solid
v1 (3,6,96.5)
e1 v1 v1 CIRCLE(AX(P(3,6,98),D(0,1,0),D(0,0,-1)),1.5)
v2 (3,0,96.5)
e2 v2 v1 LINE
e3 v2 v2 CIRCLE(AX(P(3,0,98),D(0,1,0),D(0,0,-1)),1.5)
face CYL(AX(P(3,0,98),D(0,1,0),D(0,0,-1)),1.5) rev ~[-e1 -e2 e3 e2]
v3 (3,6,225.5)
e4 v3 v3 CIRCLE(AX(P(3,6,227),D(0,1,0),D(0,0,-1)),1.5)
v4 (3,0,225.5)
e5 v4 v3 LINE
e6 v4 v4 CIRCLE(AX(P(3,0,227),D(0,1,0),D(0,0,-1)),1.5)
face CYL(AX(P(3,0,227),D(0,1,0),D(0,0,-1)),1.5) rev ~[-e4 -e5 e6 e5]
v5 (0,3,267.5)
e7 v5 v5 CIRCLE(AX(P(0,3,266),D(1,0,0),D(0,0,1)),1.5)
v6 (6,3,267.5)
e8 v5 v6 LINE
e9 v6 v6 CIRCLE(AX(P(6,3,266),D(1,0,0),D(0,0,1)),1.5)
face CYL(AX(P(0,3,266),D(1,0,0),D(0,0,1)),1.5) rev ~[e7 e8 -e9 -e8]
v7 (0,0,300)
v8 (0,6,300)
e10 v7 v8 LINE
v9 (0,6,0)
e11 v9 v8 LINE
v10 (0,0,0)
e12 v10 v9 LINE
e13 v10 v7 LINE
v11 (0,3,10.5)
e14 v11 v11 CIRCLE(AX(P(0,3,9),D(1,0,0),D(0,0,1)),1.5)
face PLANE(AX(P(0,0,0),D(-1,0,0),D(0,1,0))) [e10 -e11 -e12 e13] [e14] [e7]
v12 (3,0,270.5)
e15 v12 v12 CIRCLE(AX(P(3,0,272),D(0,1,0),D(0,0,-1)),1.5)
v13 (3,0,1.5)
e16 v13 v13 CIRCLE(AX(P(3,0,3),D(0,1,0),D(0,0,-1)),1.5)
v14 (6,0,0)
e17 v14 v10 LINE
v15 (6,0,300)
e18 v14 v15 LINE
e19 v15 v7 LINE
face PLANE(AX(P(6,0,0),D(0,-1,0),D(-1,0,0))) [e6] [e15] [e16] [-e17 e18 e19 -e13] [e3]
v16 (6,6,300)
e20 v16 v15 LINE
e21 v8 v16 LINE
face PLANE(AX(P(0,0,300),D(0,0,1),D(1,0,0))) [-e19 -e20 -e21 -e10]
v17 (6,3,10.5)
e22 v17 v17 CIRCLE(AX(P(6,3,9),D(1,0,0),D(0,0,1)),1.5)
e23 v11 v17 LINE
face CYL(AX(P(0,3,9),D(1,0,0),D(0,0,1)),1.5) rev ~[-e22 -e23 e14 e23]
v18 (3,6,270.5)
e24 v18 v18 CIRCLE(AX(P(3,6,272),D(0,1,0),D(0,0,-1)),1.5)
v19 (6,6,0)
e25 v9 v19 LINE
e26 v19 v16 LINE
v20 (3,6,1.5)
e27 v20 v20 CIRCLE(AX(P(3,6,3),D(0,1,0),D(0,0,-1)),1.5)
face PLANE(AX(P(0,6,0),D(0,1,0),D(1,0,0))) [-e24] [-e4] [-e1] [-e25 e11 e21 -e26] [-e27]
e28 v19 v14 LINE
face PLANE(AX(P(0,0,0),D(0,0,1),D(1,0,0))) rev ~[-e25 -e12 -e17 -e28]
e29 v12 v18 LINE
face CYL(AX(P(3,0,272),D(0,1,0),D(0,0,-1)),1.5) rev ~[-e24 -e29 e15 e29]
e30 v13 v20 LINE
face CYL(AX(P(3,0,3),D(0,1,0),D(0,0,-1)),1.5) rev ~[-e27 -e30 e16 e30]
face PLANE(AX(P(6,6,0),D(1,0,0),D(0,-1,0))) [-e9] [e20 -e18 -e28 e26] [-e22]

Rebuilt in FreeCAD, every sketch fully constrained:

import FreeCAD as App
import Part
import Sketcher
from FreeCAD import Vector
Q = App.Units.Quantity


def add_polygon(sketch, points):
    """Adds a closed chain of lines whose ends are joined by coincident constraints."""
    first, n = sketch.GeometryCount, len(points)
    for a, b in zip(points, points[1:] + points[:1]):
        sketch.addGeometry(Part.LineSegment(App.Vector(*a, 0), App.Vector(*b, 0)), False)
    for i in range(n):
        sketch.addConstraint(Sketcher.Constraint("Coincident", first + i, 2, first + (i + 1) % n, 1))

doc = App.newDocument("Part")
params = doc.addObject("Spreadsheet::Sheet", "Params")
for row, (alias, value) in enumerate([
    ("sketch1_width", "6 mm"),
    ("pad1_length", "300 mm"),
    ("sketch2_diameter", "3 mm"),
    ("hole_diameter", "3 mm"),
    ("sketch3_diameter", "3 mm"),
    ("hole2_diameter", "3 mm"),
], start=1):
    params.set(f"A{row}", alias)
    params.set(f"B{row}", "=" + value)
    params.setAlias(f"B{row}", alias)

body = doc.addObject("PartDesign::Body", "Body")

sketch1 = doc.addObject("Sketcher::SketchObject", "Sketch")
body.addObject(sketch1)
sketch1.AttachmentSupport = (doc.XY_Plane, [""])
sketch1.MapMode = "FlatFace"
add_polygon(sketch1, [(6, 6), (0, 6), (0, 0), (6, 0)])
sketch1.addConstraint([
    Sketcher.Constraint("Horizontal", 0),
    Sketcher.Constraint("Vertical", 1),
    Sketcher.Constraint("Horizontal", 2),
    Sketcher.Constraint("Vertical", 3),
    Sketcher.Constraint("Coincident", 1, 2, -1, 1),
    Sketcher.Constraint("Equal", 2, 1),
    Sketcher.Constraint("DistanceX", 0, 2, 0, 1, Q("6 mm")),
])
sketch1.setExpression("Constraints[10]", "Params.sketch1_width")
pad1 = doc.addObject("PartDesign::Pad", "Pad")
body.addObject(pad1)
pad1.Profile = sketch1
pad1.setExpression("Length", "Params.pad1_length")

sketch2 = doc.addObject("Sketcher::SketchObject", "Sketch001")
body.addObject(sketch2)
sketch2.AttachmentSupport = (doc.XZ_Plane, [""])
sketch2.MapMode = "FlatFace"
sketch2.addGeometry([
    Part.Circle(Vector(3, 227, 0), Vector(0, 0, 1), 1.5),
    Part.Circle(Vector(3, 98, 0), Vector(0, 0, 1), 1.5),
    Part.Circle(Vector(3, 3, 0), Vector(0, 0, 1), 1.5),
    Part.Circle(Vector(3, 272, 0), Vector(0, 0, 1), 1.5),
], False)
sketch2.addConstraint([
    Sketcher.Constraint("Equal", 0, 1),
    Sketcher.Constraint("Equal", 1, 2),
    Sketcher.Constraint("Equal", 2, 3),
    Sketcher.Constraint("Vertical", 0, 3, 1, 3),
    Sketcher.Constraint("Vertical", 1, 3, 2, 3),
    Sketcher.Constraint("Vertical", 2, 3, 3, 3),
    Sketcher.Constraint("Diameter", 0, Q("3 mm")),
    Sketcher.Constraint("DistanceX", -1, 1, 0, 3, Q("3 mm")),
    Sketcher.Constraint("DistanceY", -1, 1, 0, 3, Q("227 mm")),
    Sketcher.Constraint("DistanceY", -1, 1, 1, 3, Q("98 mm")),
    Sketcher.Constraint("DistanceY", -1, 1, 2, 3, Q("3 mm")),
    Sketcher.Constraint("DistanceY", -1, 1, 3, 3, Q("272 mm")),
])
sketch2.setExpression("Constraints[6]", "Params.sketch2_diameter")
doc.recompute()
hole = doc.addObject("PartDesign::Hole", "Hole")
body.addObject(hole)
hole.Profile = sketch2
hole.ThreadType = "None"
hole.setExpression("Diameter", "Params.hole_diameter")
hole.DepthType = "ThroughAll"

sketch3 = doc.addObject("Sketcher::SketchObject", "Sketch002")
body.addObject(sketch3)
sketch3.AttachmentSupport = (doc.YZ_Plane, [""])
sketch3.MapMode = "FlatFace"
sketch3.addGeometry([
    Part.Circle(Vector(3, 266, 0), Vector(0, 0, 1), 1.5),
    Part.Circle(Vector(3, 9, 0), Vector(0, 0, 1), 1.5),
], False)
sketch3.addConstraint([
    Sketcher.Constraint("Equal", 0, 1),
    Sketcher.Constraint("Vertical", 0, 3, 1, 3),
    Sketcher.Constraint("Diameter", 0, Q("3 mm")),
    Sketcher.Constraint("DistanceX", -1, 1, 0, 3, Q("3 mm")),
    Sketcher.Constraint("DistanceY", -1, 1, 0, 3, Q("266 mm")),
    Sketcher.Constraint("DistanceY", -1, 1, 1, 3, Q("9 mm")),
])
sketch3.setExpression("Constraints[2]", "Params.sketch3_diameter")
doc.recompute()
hole2 = doc.addObject("PartDesign::Hole", "Hole001")
body.addObject(hole2)
hole2.Profile = sketch3
hole2.ThreadType = "None"
hole2.setExpression("Diameter", "Params.hole2_diameter")
hole2.DepthType = "ThroughAll"
hole2.Reversed = True

doc.recompute()
